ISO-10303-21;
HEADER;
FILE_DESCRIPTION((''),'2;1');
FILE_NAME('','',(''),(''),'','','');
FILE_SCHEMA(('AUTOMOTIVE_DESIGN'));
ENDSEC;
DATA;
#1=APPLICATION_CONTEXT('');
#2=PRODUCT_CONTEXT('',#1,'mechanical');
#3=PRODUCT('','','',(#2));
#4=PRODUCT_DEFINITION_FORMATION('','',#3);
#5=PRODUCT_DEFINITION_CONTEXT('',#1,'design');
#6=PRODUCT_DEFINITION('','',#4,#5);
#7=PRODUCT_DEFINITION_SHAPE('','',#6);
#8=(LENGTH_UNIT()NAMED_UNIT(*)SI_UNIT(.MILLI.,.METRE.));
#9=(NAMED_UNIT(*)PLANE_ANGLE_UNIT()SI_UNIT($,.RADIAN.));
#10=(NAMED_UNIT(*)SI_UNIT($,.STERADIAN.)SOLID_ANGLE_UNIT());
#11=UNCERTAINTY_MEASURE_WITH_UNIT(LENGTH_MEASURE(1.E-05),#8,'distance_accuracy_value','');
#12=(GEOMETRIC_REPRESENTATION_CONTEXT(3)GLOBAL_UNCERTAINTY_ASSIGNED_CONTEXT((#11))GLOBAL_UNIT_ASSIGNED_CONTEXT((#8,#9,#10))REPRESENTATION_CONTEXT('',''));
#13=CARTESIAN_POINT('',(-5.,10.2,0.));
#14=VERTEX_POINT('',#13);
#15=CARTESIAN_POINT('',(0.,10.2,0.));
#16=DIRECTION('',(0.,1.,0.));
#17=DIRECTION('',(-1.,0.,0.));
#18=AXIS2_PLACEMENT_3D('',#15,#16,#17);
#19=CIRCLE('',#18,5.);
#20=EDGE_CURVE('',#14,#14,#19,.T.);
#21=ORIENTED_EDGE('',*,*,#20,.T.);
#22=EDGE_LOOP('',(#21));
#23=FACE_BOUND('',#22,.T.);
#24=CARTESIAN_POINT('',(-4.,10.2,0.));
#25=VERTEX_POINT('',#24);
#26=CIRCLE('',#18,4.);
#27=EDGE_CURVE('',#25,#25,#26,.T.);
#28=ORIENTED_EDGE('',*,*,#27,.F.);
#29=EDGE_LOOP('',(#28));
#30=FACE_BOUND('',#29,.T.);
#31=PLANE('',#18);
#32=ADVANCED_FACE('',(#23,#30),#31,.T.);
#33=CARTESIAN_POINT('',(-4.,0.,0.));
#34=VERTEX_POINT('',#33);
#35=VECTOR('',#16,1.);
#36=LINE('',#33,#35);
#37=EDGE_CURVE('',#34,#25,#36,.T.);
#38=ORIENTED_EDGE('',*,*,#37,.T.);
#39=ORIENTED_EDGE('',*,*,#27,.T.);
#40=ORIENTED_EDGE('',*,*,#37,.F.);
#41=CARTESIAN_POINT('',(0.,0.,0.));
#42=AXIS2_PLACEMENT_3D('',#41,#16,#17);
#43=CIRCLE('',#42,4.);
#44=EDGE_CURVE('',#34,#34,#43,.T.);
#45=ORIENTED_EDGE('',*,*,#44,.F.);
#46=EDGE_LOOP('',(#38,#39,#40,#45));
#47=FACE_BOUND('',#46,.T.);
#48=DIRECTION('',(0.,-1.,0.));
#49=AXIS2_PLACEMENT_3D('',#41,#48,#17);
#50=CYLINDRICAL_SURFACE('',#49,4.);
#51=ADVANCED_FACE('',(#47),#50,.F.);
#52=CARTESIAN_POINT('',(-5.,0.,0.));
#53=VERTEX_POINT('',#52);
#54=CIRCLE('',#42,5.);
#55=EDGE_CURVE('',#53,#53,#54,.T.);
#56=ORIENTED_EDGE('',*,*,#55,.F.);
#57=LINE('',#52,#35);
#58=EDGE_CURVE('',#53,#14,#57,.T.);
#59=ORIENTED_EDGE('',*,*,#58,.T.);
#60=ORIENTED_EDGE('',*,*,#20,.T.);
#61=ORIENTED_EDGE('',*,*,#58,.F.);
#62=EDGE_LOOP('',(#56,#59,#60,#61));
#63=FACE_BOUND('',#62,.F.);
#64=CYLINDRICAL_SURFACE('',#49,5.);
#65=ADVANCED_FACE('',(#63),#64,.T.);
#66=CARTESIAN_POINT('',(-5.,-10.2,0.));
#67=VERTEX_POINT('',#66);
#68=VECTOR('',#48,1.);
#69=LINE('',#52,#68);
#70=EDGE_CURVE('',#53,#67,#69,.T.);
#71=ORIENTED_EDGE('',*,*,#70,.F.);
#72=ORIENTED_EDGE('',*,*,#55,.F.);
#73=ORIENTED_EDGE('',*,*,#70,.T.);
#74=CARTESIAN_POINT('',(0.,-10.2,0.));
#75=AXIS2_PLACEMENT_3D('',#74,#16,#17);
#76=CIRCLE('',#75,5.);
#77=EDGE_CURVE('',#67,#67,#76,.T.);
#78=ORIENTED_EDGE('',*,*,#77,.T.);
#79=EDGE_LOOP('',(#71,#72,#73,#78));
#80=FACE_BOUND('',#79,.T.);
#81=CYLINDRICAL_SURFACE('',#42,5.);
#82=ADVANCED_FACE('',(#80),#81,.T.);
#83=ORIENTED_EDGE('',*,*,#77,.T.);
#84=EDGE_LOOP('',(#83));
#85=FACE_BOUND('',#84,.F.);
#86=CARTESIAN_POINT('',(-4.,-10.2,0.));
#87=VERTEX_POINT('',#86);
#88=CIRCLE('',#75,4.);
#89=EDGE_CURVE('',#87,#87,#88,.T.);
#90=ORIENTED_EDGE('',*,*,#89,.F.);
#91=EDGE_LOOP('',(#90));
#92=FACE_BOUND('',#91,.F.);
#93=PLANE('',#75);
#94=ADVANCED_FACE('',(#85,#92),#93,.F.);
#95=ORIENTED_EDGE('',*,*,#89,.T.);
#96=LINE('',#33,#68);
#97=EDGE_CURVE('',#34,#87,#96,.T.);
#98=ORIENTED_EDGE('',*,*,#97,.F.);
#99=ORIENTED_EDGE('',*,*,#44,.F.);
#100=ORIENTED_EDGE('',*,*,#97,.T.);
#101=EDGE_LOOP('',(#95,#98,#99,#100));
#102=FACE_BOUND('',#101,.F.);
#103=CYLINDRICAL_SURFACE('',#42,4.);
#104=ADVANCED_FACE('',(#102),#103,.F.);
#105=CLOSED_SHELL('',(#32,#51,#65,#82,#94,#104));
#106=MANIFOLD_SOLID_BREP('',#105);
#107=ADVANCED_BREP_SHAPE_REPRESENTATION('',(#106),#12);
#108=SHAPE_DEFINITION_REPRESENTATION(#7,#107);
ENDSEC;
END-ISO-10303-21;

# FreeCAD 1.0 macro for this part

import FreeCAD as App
import Part
import Sketcher

V = App.Vector

doc = App.newDocument("Part")
params = doc.addObject("Spreadsheet::Sheet", "Params")
for row, (alias, value) in enumerate([
    ("sketch1_diameter", "10 mm"),
    ("sketch1_diameter2", "8 mm"),
    ("pad1_length", "20.4 mm"),
], start=1):
    params.set(f"A{row}", alias)
    params.set(f"B{row}", "=" + value)
    params.setAlias(f"B{row}", alias)

body = doc.addObject("PartDesign::Body", "Body")

# Sketch on XZ plane
sketch1 = body.newObject("Sketcher::SketchObject", "Sketch")
sketch1.AttachmentSupport = (doc.getObject("XZ_Plane"), [""])
sketch1.MapMode = "FlatFace"
sketch1.addGeometry([
    Part.Circle(V(0, 0, 0), V(0, 0, 1), 5),
    Part.Circle(V(0, 0, 0), V(0, 0, 1), 4),
], False)
sketch1.addConstraint([
    Sketcher.Constraint("Coincident", 0, 3, -1, 1),
    Sketcher.Constraint("Coincident", 1, 3, -1, 1),
    Sketcher.Constraint("Diameter", 0, 10.0),
    Sketcher.Constraint("Diameter", 1, 8.0),
])
sketch1.setExpression("Constraints[2]", "Params.sketch1_diameter")
sketch1.setExpression("Constraints[3]", "Params.sketch1_diameter2")
pad1 = body.newObject("PartDesign::Pad", "Pad")
pad1.Profile = sketch1
pad1.setExpression("Length", "Params.pad1_length")
pad1.Midplane = True

doc.recompute()
